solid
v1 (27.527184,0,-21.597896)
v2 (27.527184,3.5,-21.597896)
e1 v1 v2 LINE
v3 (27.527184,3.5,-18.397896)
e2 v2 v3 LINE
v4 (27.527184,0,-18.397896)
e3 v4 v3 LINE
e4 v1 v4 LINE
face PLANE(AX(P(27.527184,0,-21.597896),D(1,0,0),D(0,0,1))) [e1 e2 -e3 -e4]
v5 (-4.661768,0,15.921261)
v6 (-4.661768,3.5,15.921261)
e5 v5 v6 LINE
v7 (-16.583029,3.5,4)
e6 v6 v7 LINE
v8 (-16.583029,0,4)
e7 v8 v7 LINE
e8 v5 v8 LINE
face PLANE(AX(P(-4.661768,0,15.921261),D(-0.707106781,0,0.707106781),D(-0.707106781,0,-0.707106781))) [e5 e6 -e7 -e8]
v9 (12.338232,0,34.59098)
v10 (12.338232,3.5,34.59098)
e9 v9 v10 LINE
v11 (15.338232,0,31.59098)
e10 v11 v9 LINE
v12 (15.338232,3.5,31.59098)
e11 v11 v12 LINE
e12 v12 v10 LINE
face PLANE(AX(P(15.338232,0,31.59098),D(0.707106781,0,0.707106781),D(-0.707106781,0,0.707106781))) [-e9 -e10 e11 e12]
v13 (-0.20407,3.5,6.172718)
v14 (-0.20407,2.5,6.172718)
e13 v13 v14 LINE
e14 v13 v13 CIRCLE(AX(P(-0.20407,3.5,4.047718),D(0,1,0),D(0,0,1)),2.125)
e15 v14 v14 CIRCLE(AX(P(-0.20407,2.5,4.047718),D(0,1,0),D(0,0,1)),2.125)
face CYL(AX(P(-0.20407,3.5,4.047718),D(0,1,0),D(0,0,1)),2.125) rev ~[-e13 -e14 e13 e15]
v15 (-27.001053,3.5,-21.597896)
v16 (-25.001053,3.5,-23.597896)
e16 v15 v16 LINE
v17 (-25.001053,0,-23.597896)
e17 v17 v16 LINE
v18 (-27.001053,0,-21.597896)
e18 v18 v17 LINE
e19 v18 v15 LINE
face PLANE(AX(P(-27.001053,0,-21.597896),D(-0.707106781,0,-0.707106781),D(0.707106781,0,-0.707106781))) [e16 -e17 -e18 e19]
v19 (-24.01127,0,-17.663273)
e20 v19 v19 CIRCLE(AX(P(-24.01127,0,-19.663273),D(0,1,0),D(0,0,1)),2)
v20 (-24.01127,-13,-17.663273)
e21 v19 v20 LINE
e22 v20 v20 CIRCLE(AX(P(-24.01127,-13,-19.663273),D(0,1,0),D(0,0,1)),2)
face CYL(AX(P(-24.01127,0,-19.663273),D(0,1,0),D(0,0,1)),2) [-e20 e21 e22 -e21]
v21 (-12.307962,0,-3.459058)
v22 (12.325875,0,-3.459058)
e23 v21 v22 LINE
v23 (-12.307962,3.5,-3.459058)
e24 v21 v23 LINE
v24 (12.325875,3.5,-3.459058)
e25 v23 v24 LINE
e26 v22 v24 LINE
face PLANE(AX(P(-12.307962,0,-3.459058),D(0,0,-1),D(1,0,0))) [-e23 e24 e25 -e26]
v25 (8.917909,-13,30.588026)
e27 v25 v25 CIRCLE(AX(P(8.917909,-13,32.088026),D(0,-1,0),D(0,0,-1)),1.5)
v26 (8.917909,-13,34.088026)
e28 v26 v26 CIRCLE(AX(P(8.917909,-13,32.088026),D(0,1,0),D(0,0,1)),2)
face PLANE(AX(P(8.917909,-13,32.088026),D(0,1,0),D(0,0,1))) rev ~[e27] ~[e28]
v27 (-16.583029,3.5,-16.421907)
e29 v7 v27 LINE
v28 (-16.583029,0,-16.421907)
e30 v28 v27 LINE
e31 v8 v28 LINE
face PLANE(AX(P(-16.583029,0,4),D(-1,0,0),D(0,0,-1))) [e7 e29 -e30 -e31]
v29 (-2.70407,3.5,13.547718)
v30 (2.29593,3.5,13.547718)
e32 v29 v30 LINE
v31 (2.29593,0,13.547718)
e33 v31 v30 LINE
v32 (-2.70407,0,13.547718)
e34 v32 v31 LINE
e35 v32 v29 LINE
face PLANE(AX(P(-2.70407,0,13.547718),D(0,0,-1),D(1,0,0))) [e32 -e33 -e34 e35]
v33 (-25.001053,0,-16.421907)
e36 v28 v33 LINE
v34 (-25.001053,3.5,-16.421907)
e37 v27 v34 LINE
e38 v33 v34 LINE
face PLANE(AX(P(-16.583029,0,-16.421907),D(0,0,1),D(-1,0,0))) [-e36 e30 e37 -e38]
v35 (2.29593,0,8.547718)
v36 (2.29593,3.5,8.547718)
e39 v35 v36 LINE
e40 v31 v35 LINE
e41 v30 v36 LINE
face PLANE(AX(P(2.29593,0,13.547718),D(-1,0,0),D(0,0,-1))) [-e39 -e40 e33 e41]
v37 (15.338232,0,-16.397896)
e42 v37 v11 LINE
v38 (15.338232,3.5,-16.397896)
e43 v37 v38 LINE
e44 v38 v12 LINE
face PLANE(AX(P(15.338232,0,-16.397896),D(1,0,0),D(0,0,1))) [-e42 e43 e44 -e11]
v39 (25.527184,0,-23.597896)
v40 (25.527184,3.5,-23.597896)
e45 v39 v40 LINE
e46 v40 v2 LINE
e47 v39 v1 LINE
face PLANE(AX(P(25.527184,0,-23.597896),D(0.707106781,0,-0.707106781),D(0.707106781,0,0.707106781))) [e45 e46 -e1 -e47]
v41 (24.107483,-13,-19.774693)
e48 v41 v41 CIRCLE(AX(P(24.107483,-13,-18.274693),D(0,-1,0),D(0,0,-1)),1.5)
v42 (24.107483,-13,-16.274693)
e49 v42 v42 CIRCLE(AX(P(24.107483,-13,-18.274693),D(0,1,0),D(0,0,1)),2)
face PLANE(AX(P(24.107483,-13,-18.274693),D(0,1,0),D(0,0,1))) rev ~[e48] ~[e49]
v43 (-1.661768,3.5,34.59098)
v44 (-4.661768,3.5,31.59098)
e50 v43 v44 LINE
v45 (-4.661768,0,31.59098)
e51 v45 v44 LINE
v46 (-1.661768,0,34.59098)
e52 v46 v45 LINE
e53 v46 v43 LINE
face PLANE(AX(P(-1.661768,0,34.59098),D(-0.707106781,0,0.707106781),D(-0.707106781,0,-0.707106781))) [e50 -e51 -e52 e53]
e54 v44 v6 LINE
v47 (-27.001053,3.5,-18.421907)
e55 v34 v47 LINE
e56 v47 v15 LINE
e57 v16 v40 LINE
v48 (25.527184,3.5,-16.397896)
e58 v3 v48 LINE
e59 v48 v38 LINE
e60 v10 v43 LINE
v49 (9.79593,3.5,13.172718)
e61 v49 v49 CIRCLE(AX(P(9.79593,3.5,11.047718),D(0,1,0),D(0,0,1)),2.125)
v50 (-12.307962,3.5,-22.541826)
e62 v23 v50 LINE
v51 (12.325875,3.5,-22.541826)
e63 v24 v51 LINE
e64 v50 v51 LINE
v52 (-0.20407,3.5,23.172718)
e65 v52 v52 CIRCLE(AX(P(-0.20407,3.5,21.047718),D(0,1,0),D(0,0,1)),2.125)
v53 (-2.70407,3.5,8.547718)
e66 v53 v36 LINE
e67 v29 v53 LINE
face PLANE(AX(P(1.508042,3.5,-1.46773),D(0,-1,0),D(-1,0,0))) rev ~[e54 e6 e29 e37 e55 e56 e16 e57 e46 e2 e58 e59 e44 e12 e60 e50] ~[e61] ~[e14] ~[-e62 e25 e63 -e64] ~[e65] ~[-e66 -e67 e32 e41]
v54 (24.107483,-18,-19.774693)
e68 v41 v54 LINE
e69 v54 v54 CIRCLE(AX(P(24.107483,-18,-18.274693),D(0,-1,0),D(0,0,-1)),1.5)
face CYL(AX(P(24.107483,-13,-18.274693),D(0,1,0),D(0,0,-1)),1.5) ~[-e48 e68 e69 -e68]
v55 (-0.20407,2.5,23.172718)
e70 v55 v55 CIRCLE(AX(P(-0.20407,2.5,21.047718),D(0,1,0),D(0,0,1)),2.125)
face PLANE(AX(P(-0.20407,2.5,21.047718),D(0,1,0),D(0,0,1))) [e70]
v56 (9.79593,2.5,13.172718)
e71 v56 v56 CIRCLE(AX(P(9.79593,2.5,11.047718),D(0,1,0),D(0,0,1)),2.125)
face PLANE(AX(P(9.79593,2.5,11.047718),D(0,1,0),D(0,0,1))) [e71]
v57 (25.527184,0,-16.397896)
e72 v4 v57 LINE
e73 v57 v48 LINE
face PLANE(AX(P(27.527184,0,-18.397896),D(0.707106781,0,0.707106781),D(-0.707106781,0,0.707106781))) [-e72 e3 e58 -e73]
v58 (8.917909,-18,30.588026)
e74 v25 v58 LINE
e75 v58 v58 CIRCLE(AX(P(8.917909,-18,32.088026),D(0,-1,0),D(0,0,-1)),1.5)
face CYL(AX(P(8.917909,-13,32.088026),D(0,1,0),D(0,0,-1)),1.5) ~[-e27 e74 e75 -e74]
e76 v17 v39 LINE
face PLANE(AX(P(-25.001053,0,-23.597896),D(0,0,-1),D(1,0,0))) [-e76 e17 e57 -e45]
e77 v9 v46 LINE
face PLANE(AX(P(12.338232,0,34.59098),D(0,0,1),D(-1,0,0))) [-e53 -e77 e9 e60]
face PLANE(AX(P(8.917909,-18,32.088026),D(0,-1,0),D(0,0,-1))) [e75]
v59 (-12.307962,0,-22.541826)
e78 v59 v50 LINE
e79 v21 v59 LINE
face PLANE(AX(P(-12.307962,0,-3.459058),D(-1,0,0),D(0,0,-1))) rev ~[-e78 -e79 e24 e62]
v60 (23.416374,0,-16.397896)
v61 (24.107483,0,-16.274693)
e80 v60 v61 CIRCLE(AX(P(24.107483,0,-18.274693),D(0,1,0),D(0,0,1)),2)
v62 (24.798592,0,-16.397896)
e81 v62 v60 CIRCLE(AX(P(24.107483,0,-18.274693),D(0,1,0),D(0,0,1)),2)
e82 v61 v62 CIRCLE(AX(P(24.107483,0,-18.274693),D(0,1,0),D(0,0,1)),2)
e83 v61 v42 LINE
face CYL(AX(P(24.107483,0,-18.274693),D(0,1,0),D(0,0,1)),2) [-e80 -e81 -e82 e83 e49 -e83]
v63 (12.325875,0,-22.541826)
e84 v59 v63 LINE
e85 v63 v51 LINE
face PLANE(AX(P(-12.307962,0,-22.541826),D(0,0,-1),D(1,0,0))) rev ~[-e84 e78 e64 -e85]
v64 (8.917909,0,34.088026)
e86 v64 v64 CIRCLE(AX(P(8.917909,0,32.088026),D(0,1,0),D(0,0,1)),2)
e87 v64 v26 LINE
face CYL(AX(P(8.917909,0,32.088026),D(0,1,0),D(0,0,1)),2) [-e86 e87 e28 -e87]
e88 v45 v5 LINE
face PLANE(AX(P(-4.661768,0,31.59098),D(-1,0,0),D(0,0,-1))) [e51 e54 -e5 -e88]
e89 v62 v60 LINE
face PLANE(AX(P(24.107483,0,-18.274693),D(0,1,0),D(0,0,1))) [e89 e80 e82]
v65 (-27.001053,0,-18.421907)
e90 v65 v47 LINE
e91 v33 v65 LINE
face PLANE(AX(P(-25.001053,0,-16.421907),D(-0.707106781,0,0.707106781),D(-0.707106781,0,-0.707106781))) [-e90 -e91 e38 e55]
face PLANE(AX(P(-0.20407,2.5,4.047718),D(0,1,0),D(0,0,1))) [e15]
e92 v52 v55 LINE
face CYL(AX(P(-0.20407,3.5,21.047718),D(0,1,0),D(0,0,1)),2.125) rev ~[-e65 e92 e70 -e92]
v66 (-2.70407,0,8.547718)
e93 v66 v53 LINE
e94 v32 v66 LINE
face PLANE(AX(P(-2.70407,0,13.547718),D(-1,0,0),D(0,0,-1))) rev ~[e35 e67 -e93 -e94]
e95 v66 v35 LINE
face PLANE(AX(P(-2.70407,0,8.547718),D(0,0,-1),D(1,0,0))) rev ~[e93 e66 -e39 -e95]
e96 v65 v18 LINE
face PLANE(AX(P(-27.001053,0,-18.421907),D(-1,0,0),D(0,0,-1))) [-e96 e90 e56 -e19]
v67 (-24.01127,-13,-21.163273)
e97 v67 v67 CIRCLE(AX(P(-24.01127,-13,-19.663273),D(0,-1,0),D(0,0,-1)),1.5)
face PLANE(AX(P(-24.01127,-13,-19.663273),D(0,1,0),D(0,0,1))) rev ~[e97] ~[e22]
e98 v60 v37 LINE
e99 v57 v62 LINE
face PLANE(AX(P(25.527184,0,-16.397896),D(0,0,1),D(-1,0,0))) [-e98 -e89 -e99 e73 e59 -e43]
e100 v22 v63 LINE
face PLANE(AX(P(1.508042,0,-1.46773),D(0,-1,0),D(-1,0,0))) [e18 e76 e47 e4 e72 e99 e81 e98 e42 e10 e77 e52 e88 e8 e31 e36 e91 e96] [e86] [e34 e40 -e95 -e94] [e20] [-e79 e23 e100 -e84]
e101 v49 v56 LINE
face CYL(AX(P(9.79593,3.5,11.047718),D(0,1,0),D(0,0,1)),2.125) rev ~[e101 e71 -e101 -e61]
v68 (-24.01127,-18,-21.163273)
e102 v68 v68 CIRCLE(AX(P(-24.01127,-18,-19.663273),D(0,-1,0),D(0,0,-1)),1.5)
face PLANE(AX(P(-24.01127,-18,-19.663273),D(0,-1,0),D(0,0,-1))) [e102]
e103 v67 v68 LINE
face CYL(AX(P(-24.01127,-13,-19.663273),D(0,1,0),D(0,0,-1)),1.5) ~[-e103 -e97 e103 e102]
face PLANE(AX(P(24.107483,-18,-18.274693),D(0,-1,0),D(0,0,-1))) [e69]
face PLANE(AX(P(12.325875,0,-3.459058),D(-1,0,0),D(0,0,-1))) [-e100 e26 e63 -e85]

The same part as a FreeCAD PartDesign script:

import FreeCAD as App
import Part
import Sketcher
Q = App.Units.Quantity


def add_polygon(sketch, points):
    """Adds a closed chain of lines whose ends are joined by coincident constraints."""
    first, n = sketch.GeometryCount, len(points)
    for a, b in zip(points, points[1:] + points[:1]):
        sketch.addGeometry(Part.LineSegment(App.Vector(*a, 0), App.Vector(*b, 0)), False)
    for i in range(n):
        sketch.addConstraint(Sketcher.Constraint("Coincident", first + i, 2, first + (i + 1) % n, 1))

doc = App.newDocument("Part")
body = doc.addObject("PartDesign::Body", "Body")

# Sketch on XZ plane
sketch1 = body.newObject("Sketcher::SketchObject", "Sketch")
sketch1.AttachmentSupport = (doc.getObject("XZ_Plane"), [""])
sketch1.MapMode = "FlatFace"
add_polygon(sketch1, [(25.527184, -23.597896), (-25.001053, -23.597896), (-27.001053, -21.597896), (-27.001053, -18.421907), (-25.001053, -16.421907), (-16.583029, -16.421907), (-16.583029, 4), (-4.661768, 15.921261), (-4.661768, 31.59098), (-1.661768, 34.59098), (12.338232, 34.59098), (15.338232, 31.59098), (15.338232, -16.397896), (25.527184, -16.397896), (27.527184, -18.397896), (27.527184, -21.597896)])  # lines 0-15
add_polygon(sketch1, [(-2.70407, 13.547718), (-2.70407, 8.547718), (2.29593, 8.547718), (2.29593, 13.547718)])  # lines 16-19
add_polygon(sketch1, [(-12.307962, -3.459058), (-12.307962, -22.541826), (12.325875, -22.541826), (12.325875, -3.459058)])  # lines 20-23
sketch1.addConstraint([
    Sketcher.Constraint("Horizontal", 0),
    Sketcher.Constraint("Vertical", 2),
    Sketcher.Constraint("Horizontal", 4),
    Sketcher.Constraint("Vertical", 5),
    Sketcher.Constraint("Vertical", 7),
    Sketcher.Constraint("Horizontal", 9),
    Sketcher.Constraint("Vertical", 11),
    Sketcher.Constraint("Horizontal", 12),
    Sketcher.Constraint("Vertical", 14),
    Sketcher.Constraint("Vertical", 16),
    Sketcher.Constraint("Horizontal", 17),
    Sketcher.Constraint("Vertical", 18),
    Sketcher.Constraint("Horizontal", 19),
    Sketcher.Constraint("Vertical", 20),
    Sketcher.Constraint("Horizontal", 21),
    Sketcher.Constraint("Vertical", 22),
    Sketcher.Constraint("Horizontal", 23),
    Sketcher.Constraint("Perpendicular", 1, 3),
    Sketcher.Constraint("Parallel", 3, 6),
    Sketcher.Constraint("Parallel", 6, 8),
    Sketcher.Constraint("Perpendicular", 8, 10),
    Sketcher.Constraint("Parallel", 10, 13),
    Sketcher.Constraint("Perpendicular", 13, 15),
    Sketcher.Constraint("Horizontal", 7, 2, 10, 2),
    Sketcher.Constraint("Horizontal", 1, 2, 14, 2),
    Sketcher.Constraint("Vertical", 0, 2, 3, 2),
    Sketcher.Constraint("Vertical", 12, 2, 15, 2),
    Sketcher.Constraint("Equal", 19, 16),
    Sketcher.Constraint("Equal", 1, 3),
    Sketcher.Constraint("DistanceX", 9, 1, 9, 2, Q("14 mm")),
    Sketcher.Constraint("DistanceX", 17, 1, 17, 2, Q("5 mm")),
    Sketcher.Constraint("DistanceY", 14, 2, 14, 1, Q("3.2 mm")),
    Sketcher.Constraint("DistanceY", -1, 1, 5, 2, Q("4 mm")),
    Sketcher.Constraint("DistanceX", 1, 2, 0, 2, Q("2 mm")),
    Sketcher.Constraint("DistanceX", 7, 2, 8, 2, Q("3 mm")),
    Sketcher.Constraint("DistanceY", 2, 1, 2, 2, Q("3.175989 mm")),
    Sketcher.Constraint("DistanceY", 7, 1, 7, 2, Q("15.669719 mm")),
    Sketcher.Constraint("DistanceY", 20, 2, 20, 1, Q("19.082768 mm")),
    Sketcher.Constraint("DistanceX", 6, 2, 16, 2, Q("1.957698 mm")),
    Sketcher.Constraint("Distance", 6, Q("16.859209 mm")),
    Sketcher.Constraint("DistanceX", 0, 2, 0, 1, Q("50.528237 mm")),
    Sketcher.Constraint("DistanceX", 4, 1, 4, 2, Q("8.418024 mm")),
    Sketcher.Constraint("DistanceX", 21, 1, 21, 2, Q("24.633837 mm")),
    Sketcher.Constraint("DistanceY", 5, 1, 5, 2, Q("20.421907 mm")),
    Sketcher.Constraint("DistanceX", 4, 2, -1, 1, Q("16.583029 mm")),
    Sketcher.Constraint("DistanceY", 20, 2, 4, 2, Q("6.119919 mm")),
    Sketcher.Constraint("DistanceX", 0, 2, 20, 2, Q("12.693091 mm")),
    Sketcher.Constraint("DistanceY", -1, 1, 16, 2, Q("8.547718 mm")),
])
pad1 = body.newObject("PartDesign::Pad", "Pad")
pad1.Profile = sketch1
pad1.Length = 3.5
pad1.Reversed = True

# Sketch on XZ plane
sketch2 = body.newObject("Sketcher::SketchObject", "Sketch001")
sketch2.AttachmentSupport = (doc.getObject("XZ_Plane"), [""])
sketch2.MapMode = "FlatFace"
sketch2.addGeometry([
    Part.Circle(App.Vector(-24.01127, -19.663273, 0), App.Vector(0, 0, 1), 2),
    Part.Circle(App.Vector(24.107483, -18.274693, 0), App.Vector(0, 0, 1), 2),
    Part.Circle(App.Vector(8.917909, 32.088026, 0), App.Vector(0, 0, 1), 2),
], False)
sketch2.addConstraint([
    Sketcher.Constraint("Equal", 0, 1),
    Sketcher.Constraint("Equal", 1, 2),
    Sketcher.Constraint("Diameter", 0, Q("4 mm")),
    Sketcher.Constraint("DistanceY", 0, 3, 2, 3, Q("51.7513 mm")),
    Sketcher.Constraint("DistanceX", 0, 3, -1, 1, Q("24.01127 mm")),
    Sketcher.Constraint("DistanceX", -1, 1, 2, 3, Q("8.917909 mm")),
    Sketcher.Constraint("DistanceY", 0, 3, 1, 3, Q("1.38858 mm")),
    Sketcher.Constraint("DistanceY", 0, 3, -1, 1, Q("19.663273 mm")),
    Sketcher.Constraint("DistanceX", -1, 1, 1, 3, Q("24.107483 mm")),
])
pad2 = body.newObject("PartDesign::Pad", "Pad001")
pad2.Profile = sketch2
pad2.Length = 13

# Sketch on XZ plane
sketch3 = body.newObject("Sketcher::SketchObject", "Sketch002")
sketch3.AttachmentSupport = (doc.getObject("XZ_Plane"), [""])
sketch3.MapMode = "FlatFace"
sketch3.AttachmentOffset = App.Placement(App.Vector(0, 0, 13), App.Rotation())
sketch3.addGeometry([
    Part.Circle(App.Vector(-24.01127, -19.663273, 0), App.Vector(0, 0, 1), 1.5),
    Part.Circle(App.Vector(8.917909, 32.088026, 0), App.Vector(0, 0, 1), 1.5),
    Part.Circle(App.Vector(24.107483, -18.274693, 0), App.Vector(0, 0, 1), 1.5),
], False)
sketch3.addConstraint([
    Sketcher.Constraint("Equal", 0, 1),
    Sketcher.Constraint("Equal", 1, 2),
    Sketcher.Constraint("Diameter", 0, Q("3 mm")),
    Sketcher.Constraint("DistanceY", 0, 3, 1, 3, Q("51.7513 mm")),
    Sketcher.Constraint("DistanceX", 0, 3, -1, 1, Q("24.01127 mm")),
    Sketcher.Constraint("DistanceX", -1, 1, 1, 3, Q("8.917909 mm")),
    Sketcher.Constraint("DistanceY", 0, 3, 2, 3, Q("1.38858 mm")),
    Sketcher.Constraint("DistanceY", 0, 3, -1, 1, Q("19.663273 mm")),
    Sketcher.Constraint("DistanceX", -1, 1, 2, 3, Q("24.107483 mm")),
])
pad3 = body.newObject("PartDesign::Pad", "Pad002")
pad3.Profile = sketch3
pad3.Length = 5

# Sketch on XZ plane
sketch4 = body.newObject("Sketcher::SketchObject", "Sketch003")
sketch4.AttachmentSupport = (doc.getObject("XZ_Plane"), [""])
sketch4.MapMode = "FlatFace"
sketch4.AttachmentOffset = App.Placement(App.Vector(0, 0, -3.5), App.Rotation())
sketch4.addGeometry([
    Part.Circle(App.Vector(-0.20407, 21.047718, 0), App.Vector(0, 0, 1), 2.125),
    Part.Circle(App.Vector(-0.20407, 4.047718, 0), App.Vector(0, 0, 1), 2.125),
    Part.Circle(App.Vector(9.79593, 11.047718, 0), App.Vector(0, 0, 1), 2.125),
], False)
sketch4.addConstraint([
    Sketcher.Constraint("Equal", 0, 1),
    Sketcher.Constraint("Equal", 1, 2),
    Sketcher.Constraint("Vertical", 0, 3, 1, 3),
    Sketcher.Constraint("Diameter", 0, Q("4.25 mm")),
    Sketcher.Constraint("DistanceY", 1, 3, 0, 3, Q("17 mm")),
    Sketcher.Constraint("DistanceX", 1, 3, 2, 3, Q("10 mm")),
    Sketcher.Constraint("DistanceY", 1, 3, 2, 3, Q("7 mm")),
    Sketcher.Constraint("DistanceX", 0, 3, -1, 1, Q("0.20407 mm")),
    Sketcher.Constraint("DistanceY", -1, 1, 0, 3, Q("21.047718 mm")),
])
pocket1 = body.newObject("PartDesign::Pocket", "Pocket")
pocket1.Profile = sketch4
pocket1.Length = 1
pocket1.Reversed = True

doc.recompute()
